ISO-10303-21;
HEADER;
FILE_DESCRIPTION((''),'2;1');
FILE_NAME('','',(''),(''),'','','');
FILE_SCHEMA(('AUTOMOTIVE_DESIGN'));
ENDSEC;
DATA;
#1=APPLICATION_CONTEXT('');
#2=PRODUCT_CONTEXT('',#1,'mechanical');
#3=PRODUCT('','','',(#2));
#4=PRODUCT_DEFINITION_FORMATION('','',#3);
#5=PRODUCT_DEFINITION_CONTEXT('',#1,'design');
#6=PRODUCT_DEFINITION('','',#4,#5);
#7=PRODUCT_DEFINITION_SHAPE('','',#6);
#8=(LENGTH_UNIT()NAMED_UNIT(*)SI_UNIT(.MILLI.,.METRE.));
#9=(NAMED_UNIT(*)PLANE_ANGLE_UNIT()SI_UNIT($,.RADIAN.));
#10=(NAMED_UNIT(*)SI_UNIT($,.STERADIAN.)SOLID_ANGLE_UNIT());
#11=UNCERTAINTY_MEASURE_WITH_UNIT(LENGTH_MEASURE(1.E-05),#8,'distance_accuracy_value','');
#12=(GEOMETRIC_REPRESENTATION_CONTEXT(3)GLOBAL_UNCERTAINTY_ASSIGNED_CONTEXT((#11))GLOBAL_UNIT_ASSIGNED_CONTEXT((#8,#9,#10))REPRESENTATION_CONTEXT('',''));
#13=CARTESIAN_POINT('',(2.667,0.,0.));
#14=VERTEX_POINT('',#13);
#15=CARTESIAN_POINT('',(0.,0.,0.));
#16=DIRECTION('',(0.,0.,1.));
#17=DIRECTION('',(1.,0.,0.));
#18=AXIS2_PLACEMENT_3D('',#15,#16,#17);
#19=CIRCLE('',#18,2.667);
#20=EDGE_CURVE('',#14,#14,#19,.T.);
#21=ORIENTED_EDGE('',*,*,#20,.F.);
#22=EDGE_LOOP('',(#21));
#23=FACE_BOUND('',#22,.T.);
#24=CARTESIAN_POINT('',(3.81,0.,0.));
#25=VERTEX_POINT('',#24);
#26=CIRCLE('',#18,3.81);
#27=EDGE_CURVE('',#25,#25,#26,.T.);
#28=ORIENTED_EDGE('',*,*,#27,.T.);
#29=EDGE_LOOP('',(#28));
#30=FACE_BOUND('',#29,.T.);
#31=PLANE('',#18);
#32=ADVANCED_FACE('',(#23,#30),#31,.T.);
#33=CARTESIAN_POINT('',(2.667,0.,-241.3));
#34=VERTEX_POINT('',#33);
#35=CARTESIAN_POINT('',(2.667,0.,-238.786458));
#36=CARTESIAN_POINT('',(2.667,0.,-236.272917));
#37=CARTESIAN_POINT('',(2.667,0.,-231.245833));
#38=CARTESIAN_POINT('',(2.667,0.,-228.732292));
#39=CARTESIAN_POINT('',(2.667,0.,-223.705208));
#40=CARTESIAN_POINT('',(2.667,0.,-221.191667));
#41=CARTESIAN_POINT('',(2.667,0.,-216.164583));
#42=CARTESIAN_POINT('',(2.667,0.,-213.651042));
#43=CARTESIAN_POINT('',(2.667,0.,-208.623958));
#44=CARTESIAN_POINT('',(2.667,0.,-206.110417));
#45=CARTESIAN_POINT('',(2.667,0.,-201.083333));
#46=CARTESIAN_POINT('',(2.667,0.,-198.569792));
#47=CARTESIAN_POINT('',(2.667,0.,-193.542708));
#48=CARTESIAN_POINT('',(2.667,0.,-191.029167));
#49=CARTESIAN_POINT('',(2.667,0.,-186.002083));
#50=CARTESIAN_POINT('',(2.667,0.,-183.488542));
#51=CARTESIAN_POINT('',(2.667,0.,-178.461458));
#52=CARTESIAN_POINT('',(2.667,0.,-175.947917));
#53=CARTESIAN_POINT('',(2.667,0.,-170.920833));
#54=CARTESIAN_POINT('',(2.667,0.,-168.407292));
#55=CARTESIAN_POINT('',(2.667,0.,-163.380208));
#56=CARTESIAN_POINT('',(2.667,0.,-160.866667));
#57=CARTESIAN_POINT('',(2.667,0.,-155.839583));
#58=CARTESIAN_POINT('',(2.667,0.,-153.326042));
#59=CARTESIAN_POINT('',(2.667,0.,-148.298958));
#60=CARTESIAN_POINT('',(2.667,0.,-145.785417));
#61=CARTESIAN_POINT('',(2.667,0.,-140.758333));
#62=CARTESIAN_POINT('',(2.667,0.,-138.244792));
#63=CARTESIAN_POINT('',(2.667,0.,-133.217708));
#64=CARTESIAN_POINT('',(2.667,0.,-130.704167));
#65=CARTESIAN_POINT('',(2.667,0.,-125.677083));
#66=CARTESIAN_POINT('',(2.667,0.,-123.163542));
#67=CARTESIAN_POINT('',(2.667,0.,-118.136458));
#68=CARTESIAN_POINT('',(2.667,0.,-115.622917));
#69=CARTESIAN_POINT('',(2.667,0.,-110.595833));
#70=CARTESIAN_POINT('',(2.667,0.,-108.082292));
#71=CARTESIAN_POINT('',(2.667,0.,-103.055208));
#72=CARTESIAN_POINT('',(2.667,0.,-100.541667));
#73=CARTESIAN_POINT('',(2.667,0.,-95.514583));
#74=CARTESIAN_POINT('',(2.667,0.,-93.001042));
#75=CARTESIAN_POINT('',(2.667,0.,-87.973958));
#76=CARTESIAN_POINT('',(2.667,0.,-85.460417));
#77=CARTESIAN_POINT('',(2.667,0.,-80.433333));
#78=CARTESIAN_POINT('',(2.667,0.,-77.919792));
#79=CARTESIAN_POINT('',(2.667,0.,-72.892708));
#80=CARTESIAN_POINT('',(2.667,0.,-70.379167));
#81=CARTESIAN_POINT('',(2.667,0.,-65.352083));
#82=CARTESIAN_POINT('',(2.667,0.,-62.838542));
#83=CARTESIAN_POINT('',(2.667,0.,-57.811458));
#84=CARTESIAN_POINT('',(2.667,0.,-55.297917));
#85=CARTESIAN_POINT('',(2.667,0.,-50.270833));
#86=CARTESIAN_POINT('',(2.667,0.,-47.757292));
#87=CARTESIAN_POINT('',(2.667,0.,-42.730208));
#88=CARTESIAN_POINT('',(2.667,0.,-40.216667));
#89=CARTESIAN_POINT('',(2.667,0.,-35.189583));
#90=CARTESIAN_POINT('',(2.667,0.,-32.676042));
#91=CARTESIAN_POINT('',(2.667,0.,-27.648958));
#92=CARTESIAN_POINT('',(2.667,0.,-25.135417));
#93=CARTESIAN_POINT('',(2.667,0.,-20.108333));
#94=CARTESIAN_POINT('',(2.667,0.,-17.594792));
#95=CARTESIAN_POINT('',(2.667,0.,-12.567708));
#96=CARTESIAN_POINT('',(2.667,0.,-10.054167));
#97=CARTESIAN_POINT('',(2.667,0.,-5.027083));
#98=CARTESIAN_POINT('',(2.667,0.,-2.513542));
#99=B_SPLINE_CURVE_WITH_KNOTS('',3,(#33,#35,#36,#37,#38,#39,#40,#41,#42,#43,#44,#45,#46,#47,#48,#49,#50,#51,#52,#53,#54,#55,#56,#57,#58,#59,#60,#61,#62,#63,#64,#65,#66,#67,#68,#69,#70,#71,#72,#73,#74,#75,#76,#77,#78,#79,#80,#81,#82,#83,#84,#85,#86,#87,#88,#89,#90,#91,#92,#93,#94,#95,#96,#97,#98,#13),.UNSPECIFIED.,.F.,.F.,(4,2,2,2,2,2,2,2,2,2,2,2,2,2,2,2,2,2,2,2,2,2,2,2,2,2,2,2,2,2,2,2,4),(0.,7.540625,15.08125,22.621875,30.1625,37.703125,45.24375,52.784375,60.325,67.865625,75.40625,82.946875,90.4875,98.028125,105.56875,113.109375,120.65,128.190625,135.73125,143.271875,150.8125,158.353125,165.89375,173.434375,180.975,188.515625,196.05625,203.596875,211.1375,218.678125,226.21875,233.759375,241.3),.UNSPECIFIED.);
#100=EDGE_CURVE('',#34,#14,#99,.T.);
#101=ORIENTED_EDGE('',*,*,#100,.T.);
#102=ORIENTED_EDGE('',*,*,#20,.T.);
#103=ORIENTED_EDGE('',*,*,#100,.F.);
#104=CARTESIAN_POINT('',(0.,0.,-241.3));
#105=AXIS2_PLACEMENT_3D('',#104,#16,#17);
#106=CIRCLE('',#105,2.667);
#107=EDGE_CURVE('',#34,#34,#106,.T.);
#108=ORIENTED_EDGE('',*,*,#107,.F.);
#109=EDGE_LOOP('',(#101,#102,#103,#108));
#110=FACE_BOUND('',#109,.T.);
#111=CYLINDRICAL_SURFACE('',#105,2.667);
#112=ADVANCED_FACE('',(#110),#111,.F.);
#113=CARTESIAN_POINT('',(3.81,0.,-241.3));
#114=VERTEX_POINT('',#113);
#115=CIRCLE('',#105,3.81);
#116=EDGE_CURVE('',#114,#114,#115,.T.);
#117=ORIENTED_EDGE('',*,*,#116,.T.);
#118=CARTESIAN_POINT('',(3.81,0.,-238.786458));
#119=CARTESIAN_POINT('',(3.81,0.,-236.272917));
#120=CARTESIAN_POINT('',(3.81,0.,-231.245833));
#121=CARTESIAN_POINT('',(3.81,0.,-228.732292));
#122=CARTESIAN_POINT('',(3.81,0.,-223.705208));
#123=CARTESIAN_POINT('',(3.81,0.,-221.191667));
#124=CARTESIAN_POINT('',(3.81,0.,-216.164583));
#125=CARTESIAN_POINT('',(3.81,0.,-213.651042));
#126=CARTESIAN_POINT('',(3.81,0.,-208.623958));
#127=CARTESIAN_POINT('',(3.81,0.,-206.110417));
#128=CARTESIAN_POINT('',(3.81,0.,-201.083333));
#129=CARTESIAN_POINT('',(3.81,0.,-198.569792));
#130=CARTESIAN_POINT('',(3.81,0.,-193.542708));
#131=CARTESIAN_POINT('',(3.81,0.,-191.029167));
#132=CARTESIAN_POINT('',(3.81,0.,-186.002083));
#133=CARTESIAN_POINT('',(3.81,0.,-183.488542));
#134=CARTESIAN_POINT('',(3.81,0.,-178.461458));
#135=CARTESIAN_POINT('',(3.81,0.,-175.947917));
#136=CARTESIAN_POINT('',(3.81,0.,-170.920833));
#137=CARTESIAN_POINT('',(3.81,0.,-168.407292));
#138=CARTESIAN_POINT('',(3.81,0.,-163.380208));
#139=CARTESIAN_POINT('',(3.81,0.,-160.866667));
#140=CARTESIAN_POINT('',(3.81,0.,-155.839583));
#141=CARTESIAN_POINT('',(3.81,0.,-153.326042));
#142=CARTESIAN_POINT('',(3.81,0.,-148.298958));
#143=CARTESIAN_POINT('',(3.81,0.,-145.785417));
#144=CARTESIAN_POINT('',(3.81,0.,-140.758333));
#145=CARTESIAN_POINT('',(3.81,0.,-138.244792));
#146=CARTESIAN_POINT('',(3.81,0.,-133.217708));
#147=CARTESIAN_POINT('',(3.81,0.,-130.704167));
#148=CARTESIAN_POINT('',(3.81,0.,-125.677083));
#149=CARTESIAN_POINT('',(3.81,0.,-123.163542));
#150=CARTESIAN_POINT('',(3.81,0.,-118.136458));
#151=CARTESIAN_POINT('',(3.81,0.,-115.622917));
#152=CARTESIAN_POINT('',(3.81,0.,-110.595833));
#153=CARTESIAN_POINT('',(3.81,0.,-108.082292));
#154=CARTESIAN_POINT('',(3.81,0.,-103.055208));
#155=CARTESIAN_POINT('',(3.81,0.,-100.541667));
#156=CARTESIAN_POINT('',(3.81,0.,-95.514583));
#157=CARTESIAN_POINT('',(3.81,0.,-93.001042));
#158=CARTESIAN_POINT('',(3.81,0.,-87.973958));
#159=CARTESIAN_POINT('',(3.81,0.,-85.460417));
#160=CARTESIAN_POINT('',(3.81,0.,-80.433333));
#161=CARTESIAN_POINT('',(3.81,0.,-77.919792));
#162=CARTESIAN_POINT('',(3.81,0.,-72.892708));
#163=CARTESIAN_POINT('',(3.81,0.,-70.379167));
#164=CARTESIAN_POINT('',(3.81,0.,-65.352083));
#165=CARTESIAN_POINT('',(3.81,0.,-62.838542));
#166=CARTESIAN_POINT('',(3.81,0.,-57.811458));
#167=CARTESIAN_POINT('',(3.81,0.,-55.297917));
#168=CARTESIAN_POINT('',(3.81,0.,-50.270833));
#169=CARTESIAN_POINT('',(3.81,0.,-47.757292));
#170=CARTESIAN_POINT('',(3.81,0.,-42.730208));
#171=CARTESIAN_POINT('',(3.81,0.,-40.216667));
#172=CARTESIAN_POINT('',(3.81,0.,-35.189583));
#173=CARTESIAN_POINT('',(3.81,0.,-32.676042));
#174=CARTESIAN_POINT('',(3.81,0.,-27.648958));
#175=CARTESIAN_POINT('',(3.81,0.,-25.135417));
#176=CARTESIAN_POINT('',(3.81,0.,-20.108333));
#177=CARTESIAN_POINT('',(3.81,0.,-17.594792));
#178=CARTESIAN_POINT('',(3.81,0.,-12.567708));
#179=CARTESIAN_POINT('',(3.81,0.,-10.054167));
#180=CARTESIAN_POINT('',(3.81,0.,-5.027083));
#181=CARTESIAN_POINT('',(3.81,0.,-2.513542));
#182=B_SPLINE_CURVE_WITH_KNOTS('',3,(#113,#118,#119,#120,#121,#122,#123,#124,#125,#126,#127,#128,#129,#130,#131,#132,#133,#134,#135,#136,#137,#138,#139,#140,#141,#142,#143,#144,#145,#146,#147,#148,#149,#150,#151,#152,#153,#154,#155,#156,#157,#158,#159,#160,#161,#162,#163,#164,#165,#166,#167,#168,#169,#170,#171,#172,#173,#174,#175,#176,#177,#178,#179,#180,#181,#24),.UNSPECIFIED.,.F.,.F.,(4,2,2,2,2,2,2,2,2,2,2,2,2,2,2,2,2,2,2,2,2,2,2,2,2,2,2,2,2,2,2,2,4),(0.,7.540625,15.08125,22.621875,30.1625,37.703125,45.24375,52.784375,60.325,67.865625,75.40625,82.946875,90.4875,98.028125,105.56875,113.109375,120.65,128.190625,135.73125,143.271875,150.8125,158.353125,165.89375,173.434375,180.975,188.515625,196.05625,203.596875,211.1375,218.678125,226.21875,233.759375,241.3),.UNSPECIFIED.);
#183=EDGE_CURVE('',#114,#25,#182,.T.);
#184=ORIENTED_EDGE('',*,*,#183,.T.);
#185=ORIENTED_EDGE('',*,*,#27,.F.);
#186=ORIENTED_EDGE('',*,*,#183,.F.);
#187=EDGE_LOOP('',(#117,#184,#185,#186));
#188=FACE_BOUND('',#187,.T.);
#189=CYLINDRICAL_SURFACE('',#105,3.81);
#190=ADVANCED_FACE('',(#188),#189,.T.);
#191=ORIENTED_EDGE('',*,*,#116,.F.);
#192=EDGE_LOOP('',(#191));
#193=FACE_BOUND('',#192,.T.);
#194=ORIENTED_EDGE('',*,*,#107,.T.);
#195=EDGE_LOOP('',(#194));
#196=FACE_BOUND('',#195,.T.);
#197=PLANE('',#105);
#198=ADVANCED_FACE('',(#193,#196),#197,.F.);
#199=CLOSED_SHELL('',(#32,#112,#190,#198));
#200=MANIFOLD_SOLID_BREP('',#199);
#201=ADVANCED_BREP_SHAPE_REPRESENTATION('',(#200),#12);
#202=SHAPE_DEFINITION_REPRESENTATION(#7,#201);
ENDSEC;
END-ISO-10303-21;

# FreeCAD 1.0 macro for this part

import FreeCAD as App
import Part
import Sketcher

V = App.Vector
Q = App.Units.Quantity

doc = App.newDocument("Part")
params = doc.addObject("Spreadsheet::Sheet", "Params")
for row, (alias, value) in enumerate([
    ("sketch1_diameter", "0.3 in"),
    ("pad1_length", "9.5 in"),
    ("sketch2_diameter", "0.21 in"),
], start=1):
    params.set(f"A{row}", alias)
    params.set(f"B{row}", "=" + value)
    params.setAlias(f"B{row}", alias)

body = doc.addObject("PartDesign::Body", "Body")

# Sketch on XY plane
sketch1 = body.newObject("Sketcher::SketchObject", "Sketch")
sketch1.AttachmentSupport = (doc.getObject("XY_Plane"), [""])
sketch1.MapMode = "FlatFace"
sketch1.addGeometry(Part.Circle(V(0, 0, 0), V(0, 0, 1), 3.8), False)
sketch1.addConstraint(Sketcher.Constraint("Coincident", 0, 3, -1, 1))
sketch1.addConstraint(Sketcher.Constraint("Diameter", 0, Q("0.3 in")))
sketch1.setExpression("Constraints[1]", "Params.sketch1_diameter")
pad1 = body.newObject("PartDesign::Pad", "Pad")
pad1.Profile = sketch1
pad1.setExpression("Length", "Params.pad1_length")
pad1.Reversed = True

# Sketch on XY plane
sketch2 = body.newObject("Sketcher::SketchObject", "Sketch001")
sketch2.AttachmentSupport = (doc.getObject("XY_Plane"), [""])
sketch2.MapMode = "FlatFace"
sketch2.addGeometry(Part.Circle(V(0, 0, 0), V(0, 0, 1), 2.7), False)
sketch2.addConstraint(Sketcher.Constraint("Coincident", 0, 3, -1, 1))
sketch2.addConstraint(Sketcher.Constraint("Diameter", 0, Q("0.21 in")))
sketch2.setExpression("Constraints[1]", "Params.sketch2_diameter")
pocket1 = body.newObject("PartDesign::Pocket", "Pocket")
pocket1.Profile = sketch2
pocket1.Type = "ThroughAll"

doc.recompute()
